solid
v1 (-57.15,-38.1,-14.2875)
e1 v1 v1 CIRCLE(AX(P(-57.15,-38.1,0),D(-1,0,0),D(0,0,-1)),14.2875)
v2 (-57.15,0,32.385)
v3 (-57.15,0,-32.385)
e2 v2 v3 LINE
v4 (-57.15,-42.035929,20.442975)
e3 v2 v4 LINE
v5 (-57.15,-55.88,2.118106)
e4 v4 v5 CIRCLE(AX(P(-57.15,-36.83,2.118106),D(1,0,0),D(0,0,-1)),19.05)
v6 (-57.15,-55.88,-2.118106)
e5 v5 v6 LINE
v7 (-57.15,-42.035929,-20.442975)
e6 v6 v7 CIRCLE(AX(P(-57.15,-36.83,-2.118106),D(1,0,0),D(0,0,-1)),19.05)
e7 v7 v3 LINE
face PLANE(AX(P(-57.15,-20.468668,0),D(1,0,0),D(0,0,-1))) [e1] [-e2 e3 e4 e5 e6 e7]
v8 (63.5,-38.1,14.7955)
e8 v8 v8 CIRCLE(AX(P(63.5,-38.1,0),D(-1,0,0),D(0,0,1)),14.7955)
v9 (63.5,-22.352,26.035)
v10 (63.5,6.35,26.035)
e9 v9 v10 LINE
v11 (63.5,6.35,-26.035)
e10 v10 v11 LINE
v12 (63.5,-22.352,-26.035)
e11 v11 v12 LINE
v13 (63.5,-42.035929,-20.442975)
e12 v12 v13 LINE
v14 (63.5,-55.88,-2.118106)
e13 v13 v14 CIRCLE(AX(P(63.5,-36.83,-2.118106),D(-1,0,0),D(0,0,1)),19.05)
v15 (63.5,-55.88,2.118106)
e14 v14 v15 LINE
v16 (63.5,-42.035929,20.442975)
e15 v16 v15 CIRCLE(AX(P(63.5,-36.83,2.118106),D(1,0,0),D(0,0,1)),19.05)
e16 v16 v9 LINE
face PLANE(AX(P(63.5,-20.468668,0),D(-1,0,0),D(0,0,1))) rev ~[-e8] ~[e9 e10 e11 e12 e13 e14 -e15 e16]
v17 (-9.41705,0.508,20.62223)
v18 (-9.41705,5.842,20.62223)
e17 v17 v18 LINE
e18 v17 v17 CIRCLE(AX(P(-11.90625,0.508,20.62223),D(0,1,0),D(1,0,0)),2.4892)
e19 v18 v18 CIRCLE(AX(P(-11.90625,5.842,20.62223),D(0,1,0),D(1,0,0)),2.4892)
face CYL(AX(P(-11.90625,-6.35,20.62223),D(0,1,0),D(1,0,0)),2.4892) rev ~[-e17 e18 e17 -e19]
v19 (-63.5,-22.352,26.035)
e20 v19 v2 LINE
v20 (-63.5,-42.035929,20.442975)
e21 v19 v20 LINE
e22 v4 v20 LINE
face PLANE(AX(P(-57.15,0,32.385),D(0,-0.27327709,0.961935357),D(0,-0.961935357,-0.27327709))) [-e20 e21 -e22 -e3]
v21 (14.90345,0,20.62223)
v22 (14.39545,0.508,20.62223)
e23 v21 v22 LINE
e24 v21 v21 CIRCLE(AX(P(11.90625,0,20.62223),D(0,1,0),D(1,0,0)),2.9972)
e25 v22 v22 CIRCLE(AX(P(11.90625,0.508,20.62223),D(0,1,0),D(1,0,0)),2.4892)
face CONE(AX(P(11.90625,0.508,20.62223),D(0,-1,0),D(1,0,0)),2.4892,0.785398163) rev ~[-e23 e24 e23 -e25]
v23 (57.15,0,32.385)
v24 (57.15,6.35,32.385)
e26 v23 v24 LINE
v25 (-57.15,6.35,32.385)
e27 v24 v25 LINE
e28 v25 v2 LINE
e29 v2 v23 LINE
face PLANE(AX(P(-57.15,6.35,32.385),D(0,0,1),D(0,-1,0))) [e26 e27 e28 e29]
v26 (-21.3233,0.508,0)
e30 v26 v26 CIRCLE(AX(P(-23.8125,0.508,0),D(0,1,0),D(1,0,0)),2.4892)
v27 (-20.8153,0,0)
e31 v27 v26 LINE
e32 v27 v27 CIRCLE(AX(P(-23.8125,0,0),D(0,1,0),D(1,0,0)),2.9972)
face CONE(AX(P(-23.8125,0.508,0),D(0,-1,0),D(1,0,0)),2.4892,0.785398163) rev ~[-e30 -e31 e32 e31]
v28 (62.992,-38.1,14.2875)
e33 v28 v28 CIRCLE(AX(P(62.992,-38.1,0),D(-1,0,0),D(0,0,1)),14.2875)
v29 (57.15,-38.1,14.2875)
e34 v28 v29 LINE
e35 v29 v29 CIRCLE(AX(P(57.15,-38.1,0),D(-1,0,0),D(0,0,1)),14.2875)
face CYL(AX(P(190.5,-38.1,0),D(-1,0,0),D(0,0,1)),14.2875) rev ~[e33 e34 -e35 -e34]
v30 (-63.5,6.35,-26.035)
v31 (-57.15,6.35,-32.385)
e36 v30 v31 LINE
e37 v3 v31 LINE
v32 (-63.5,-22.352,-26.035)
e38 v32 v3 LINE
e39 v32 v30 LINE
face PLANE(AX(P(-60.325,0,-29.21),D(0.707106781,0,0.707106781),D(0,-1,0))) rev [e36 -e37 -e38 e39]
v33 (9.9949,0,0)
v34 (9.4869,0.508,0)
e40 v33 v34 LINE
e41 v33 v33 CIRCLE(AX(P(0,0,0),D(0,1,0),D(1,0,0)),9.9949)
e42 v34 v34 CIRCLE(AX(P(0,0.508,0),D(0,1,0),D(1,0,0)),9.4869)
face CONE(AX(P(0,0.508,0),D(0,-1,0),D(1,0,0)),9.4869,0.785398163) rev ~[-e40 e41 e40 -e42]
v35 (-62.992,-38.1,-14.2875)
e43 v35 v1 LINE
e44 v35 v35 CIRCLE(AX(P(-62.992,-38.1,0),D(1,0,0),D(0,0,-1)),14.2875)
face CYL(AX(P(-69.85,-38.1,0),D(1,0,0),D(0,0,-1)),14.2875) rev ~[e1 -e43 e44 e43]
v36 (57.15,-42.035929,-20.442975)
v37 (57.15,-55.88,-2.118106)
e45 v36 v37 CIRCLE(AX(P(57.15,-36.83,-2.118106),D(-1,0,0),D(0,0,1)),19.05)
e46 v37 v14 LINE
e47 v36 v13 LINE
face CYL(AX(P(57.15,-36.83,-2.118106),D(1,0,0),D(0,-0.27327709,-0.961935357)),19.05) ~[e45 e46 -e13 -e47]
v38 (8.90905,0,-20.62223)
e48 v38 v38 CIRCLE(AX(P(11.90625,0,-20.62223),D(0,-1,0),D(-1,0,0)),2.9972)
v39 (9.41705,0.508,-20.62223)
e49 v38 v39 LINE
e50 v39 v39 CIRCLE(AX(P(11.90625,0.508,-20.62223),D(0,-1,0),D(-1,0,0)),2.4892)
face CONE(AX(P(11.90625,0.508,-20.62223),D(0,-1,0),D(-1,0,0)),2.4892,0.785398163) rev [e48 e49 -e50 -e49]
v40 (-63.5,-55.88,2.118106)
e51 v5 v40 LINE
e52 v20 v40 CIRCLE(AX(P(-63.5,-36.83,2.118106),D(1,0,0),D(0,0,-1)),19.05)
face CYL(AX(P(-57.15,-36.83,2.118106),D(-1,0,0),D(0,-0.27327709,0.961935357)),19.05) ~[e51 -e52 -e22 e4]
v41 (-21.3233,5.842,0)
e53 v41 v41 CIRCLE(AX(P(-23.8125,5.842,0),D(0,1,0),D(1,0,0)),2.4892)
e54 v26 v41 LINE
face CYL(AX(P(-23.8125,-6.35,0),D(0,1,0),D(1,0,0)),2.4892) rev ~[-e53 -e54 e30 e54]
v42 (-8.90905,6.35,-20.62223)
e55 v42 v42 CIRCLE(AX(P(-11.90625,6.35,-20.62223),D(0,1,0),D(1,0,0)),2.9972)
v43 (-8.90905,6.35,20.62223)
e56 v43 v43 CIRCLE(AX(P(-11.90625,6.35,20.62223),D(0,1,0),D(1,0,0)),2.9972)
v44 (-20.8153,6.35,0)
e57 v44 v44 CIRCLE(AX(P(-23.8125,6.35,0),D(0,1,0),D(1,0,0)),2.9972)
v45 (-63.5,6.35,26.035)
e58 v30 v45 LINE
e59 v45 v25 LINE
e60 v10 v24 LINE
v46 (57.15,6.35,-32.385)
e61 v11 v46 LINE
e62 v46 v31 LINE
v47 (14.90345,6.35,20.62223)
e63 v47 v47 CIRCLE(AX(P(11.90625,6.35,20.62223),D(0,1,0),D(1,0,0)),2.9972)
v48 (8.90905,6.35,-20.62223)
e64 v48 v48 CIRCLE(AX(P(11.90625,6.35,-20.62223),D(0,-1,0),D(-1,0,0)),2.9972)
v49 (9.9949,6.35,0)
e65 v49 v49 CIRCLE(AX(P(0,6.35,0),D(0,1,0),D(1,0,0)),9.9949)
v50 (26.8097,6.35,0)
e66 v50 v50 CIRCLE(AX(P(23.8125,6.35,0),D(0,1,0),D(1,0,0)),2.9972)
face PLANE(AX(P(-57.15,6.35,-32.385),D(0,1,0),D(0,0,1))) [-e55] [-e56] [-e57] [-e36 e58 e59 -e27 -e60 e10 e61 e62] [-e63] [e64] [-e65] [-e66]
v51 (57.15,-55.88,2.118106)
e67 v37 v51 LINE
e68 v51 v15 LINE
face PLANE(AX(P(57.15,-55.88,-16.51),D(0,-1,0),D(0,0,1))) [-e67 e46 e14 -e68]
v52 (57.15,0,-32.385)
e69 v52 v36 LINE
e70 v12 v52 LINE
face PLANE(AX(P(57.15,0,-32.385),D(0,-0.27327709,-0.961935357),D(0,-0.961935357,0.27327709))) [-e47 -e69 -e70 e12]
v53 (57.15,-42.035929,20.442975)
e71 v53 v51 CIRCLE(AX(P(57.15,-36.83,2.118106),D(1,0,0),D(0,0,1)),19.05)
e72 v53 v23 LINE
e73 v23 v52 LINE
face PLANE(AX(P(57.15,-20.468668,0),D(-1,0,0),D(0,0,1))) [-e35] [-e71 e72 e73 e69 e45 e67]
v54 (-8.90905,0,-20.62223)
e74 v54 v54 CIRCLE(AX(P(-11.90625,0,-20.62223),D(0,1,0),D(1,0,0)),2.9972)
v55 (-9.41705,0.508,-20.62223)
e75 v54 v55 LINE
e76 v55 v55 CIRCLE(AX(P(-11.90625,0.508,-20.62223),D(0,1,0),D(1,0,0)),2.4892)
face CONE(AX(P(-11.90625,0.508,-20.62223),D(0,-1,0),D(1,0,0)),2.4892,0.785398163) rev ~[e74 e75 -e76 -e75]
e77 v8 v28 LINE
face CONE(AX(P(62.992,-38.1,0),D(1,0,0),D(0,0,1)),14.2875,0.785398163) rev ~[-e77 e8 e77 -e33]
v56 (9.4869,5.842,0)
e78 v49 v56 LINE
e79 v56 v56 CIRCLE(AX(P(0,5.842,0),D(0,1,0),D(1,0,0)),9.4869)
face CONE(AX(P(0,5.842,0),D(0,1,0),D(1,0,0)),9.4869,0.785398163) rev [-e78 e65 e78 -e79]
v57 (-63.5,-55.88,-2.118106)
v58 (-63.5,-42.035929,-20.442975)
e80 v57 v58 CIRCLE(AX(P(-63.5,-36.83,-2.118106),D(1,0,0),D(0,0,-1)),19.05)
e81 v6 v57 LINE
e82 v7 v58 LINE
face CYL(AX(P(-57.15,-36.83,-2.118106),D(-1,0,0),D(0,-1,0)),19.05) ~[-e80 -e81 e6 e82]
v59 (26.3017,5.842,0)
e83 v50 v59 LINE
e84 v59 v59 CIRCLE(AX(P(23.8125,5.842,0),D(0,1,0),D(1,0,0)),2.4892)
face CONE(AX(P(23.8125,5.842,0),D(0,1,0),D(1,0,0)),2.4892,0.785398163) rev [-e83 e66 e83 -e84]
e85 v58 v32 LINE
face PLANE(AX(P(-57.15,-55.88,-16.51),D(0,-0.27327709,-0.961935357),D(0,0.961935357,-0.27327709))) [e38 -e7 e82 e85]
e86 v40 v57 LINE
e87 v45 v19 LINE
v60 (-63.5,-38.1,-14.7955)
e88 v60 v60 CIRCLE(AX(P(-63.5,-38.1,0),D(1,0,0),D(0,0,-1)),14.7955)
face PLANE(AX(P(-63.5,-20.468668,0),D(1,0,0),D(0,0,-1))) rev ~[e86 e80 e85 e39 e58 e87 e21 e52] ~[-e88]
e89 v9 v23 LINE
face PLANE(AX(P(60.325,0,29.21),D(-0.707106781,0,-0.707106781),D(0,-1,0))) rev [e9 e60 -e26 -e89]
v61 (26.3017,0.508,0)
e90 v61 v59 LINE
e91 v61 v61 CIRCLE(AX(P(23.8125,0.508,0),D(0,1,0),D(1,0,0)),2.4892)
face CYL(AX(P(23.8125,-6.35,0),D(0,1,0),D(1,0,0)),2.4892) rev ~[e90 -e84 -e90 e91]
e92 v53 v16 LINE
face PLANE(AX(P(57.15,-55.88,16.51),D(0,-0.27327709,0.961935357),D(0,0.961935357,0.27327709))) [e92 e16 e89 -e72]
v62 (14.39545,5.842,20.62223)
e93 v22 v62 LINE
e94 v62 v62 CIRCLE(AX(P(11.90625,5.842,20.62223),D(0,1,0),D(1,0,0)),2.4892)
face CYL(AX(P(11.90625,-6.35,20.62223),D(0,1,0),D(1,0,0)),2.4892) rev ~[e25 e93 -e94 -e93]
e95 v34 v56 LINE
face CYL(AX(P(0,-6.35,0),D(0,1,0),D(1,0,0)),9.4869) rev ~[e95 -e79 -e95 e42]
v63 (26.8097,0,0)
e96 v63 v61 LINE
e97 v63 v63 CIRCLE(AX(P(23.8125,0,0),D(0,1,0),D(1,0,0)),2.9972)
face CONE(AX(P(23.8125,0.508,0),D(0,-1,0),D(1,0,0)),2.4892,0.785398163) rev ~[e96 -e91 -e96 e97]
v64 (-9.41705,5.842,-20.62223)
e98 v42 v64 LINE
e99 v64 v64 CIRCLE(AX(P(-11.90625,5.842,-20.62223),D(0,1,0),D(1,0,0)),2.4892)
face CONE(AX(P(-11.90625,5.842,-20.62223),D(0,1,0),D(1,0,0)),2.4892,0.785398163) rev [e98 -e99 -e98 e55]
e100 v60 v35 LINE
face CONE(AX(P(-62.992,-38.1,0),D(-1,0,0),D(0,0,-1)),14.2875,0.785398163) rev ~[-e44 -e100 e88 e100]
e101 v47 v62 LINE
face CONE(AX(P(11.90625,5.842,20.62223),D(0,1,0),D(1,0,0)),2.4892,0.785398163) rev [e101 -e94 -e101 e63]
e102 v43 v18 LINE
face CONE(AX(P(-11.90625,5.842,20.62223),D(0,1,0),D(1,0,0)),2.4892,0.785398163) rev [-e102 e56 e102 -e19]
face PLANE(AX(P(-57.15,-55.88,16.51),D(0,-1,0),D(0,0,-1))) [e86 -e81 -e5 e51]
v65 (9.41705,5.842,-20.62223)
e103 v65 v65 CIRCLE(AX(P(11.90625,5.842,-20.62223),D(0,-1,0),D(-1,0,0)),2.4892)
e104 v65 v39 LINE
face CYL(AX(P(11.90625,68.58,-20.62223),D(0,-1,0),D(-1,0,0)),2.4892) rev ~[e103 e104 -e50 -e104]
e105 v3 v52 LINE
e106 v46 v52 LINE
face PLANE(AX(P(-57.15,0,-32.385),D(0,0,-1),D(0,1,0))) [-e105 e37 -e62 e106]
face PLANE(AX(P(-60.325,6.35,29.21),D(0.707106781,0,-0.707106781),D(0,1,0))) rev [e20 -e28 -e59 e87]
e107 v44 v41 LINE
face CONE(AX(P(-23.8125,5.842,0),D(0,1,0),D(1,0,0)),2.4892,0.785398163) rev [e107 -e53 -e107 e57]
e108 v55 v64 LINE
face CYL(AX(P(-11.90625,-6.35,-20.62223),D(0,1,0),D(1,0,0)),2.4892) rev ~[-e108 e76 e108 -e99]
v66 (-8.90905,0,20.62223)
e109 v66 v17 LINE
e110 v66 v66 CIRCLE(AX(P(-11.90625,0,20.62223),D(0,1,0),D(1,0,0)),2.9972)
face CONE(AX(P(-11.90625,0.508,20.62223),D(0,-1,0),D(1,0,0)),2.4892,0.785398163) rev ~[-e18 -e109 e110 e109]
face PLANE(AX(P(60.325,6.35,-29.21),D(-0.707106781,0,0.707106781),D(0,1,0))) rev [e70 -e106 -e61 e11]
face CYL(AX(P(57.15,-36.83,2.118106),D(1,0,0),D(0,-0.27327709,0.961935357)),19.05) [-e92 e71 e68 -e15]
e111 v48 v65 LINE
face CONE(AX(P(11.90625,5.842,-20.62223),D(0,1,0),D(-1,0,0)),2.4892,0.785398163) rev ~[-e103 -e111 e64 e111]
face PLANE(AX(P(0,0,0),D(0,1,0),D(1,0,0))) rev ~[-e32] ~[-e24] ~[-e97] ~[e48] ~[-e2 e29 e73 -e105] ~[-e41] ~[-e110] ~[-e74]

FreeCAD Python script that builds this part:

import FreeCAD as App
import Part
import Sketcher
Q = App.Units.Quantity


def edges_at(feature, points):
    """Names of the edges that pass closest to the given points."""
    edges = feature.Shape.Edges
    near = lambda p: min(range(len(edges)), key=lambda i: edges[i].distToShape(Part.Vertex(*p))[0])
    return sorted({f"Edge{near(p) + 1}" for p in points})

doc = App.newDocument("Part")
body = doc.addObject("PartDesign::Body", "Body")

# Sketch on XZ plane
sketch1 = body.newObject("Sketcher::SketchObject", "Sketch")
sketch1.AttachmentSupport = (doc.getObject("XZ_Plane"), [""])
sketch1.MapMode = "FlatFace"
sketch1.AttachmentOffset = App.Placement(App.Vector(0, 0, -0.25 * 25.4), App.Rotation())
sketch1.addGeometry([
    Part.LineSegment(App.Vector(-57.15, -32.385, 0), App.Vector(-57.15, 32.385, 0)),
    Part.LineSegment(App.Vector(-57.15, 32.385, 0), App.Vector(57.15, 32.385, 0)),
    Part.LineSegment(App.Vector(57.15, 32.385, 0), App.Vector(57.15, -32.385, 0)),
    Part.LineSegment(App.Vector(57.15, -32.385, 0), App.Vector(-57.15, -32.385, 0)),
], False)
sketch1.addConstraint([
    Sketcher.Constraint("Coincident", 0, 2, 1, 1),
    Sketcher.Constraint("Coincident", 1, 2, 2, 1),
    Sketcher.Constraint("Coincident", 2, 2, 3, 1),
    Sketcher.Constraint("Coincident", 3, 2, 0, 1),
    Sketcher.Constraint("Vertical", 0),
    Sketcher.Constraint("Horizontal", 1),
    Sketcher.Constraint("Vertical", 2),
    Sketcher.Constraint("Horizontal", 3),
    Sketcher.Constraint("Symmetric", 0, 2, 2, 2, -1, 1),
    Sketcher.Constraint("DistanceX", 1, 1, 1, 2, Q("4.5 in")),
    Sketcher.Constraint("DistanceY", 0, 1, 0, 2, Q("2.55 in")),
])
pad1 = body.newObject("PartDesign::Pad", "Pad")
pad1.Profile = sketch1
pad1.Length = Q("0.25 in")

# Sketch on YZ plane
sketch2 = body.newObject("Sketcher::SketchObject", "Sketch001")
sketch2.AttachmentSupport = (doc.getObject("YZ_Plane"), [""])
sketch2.MapMode = "FlatFace"
sketch2.AttachmentOffset = App.Placement(App.Vector(0, 0, 2.25 * 25.4), App.Rotation())
sketch2.addGeometry([
    Part.LineSegment(App.Vector(6.35, -32.385, 0), App.Vector(6.35, 32.385, 0)),  # 0
    Part.LineSegment(App.Vector(6.35, 32.385, 0), App.Vector(0, 32.385, 0)),  # 1
    Part.LineSegment(App.Vector(0, 32.385, 0), App.Vector(-55.88, 16.51, 0)),  # 2
    Part.LineSegment(App.Vector(-55.88, 16.51, 0), App.Vector(-55.88, -16.51, 0)),  # 3
    Part.LineSegment(App.Vector(-55.88, -16.51, 0), App.Vector(0, -32.385, 0)),  # 4
    Part.LineSegment(App.Vector(0, -32.385, 0), App.Vector(6.35, -32.385, 0)),  # 5
], False)
sketch2.addConstraint([
    Sketcher.Constraint("Coincident", 0, 2, 1, 1),
    Sketcher.Constraint("Coincident", 1, 2, 2, 1),
    Sketcher.Constraint("Coincident", 2, 2, 3, 1),
    Sketcher.Constraint("Coincident", 3, 2, 4, 1),
    Sketcher.Constraint("Coincident", 4, 2, 5, 1),
    Sketcher.Constraint("Coincident", 5, 2, 0, 1),
    Sketcher.Constraint("Vertical", 0),
    Sketcher.Constraint("Horizontal", 1),
    Sketcher.Constraint("Vertical", 3),
    Sketcher.Constraint("Horizontal", 5),
    Sketcher.Constraint("Symmetric", 1, 2, 4, 2, -1, 1),
    Sketcher.Constraint("PointOnObject", 1, 2, -2),
    Sketcher.Constraint("Equal", 2, 4),
    Sketcher.Constraint("DistanceY", 3, 2, 3, 1, Q("1.3 in")),
    Sketcher.Constraint("DistanceX", 1, 2, 1, 1, Q("0.25 in")),
    Sketcher.Constraint("DistanceY", 0, 1, 0, 2, Q("2.55 in")),
    Sketcher.Constraint("DistanceX", 2, 2, -1, 1, Q("2.2 in")),
])
pad2 = body.newObject("PartDesign::Pad", "Pad001")
pad2.Profile = sketch2
pad2.Length = Q("0.25 in")

# Sketch on YZ plane
sketch3 = body.newObject("Sketcher::SketchObject", "Sketch002")
sketch3.AttachmentSupport = (doc.getObject("YZ_Plane"), [""])
sketch3.MapMode = "FlatFace"
sketch3.AttachmentOffset = App.Placement(App.Vector(0, 0, -2.25 * 25.4), App.Rotation())
sketch3.addGeometry([
    Part.LineSegment(App.Vector(-55.88, 16.51, 0), App.Vector(0, 32.385, 0)),  # 0
    Part.LineSegment(App.Vector(0, 32.385, 0), App.Vector(6.35, 32.385, 0)),  # 1
    Part.LineSegment(App.Vector(6.35, 32.385, 0), App.Vector(6.35, -32.385, 0)),  # 2
    Part.LineSegment(App.Vector(6.35, -32.385, 0), App.Vector(0, -32.385, 0)),  # 3
    Part.LineSegment(App.Vector(0, -32.385, 0), App.Vector(-55.88, -16.51, 0)),  # 4
    Part.LineSegment(App.Vector(-55.88, -16.51, 0), App.Vector(-55.88, 16.51, 0)),  # 5
], False)
sketch3.addConstraint([
    Sketcher.Constraint("Coincident", 0, 2, 1, 1),
    Sketcher.Constraint("Coincident", 1, 2, 2, 1),
    Sketcher.Constraint("Coincident", 2, 2, 3, 1),
    Sketcher.Constraint("Coincident", 3, 2, 4, 1),
    Sketcher.Constraint("Coincident", 4, 2, 5, 1),
    Sketcher.Constraint("Coincident", 5, 2, 0, 1),
    Sketcher.Constraint("Horizontal", 1),
    Sketcher.Constraint("Vertical", 2),
    Sketcher.Constraint("Horizontal", 3),
    Sketcher.Constraint("Vertical", 5),
    Sketcher.Constraint("Symmetric", 0, 2, 3, 2, -1, 1),
    Sketcher.Constraint("PointOnObject", 0, 2, -2),
    Sketcher.Constraint("Equal", 0, 4),
    Sketcher.Constraint("DistanceY", 5, 1, 5, 2, Q("1.3 in")),
    Sketcher.Constraint("DistanceX", 1, 1, 1, 2, Q("0.25 in")),
    Sketcher.Constraint("DistanceY", 2, 2, 2, 1, Q("2.55 in")),
    Sketcher.Constraint("DistanceX", 4, 2, -1, 1, Q("2.2 in")),
])
pad3 = body.newObject("PartDesign::Pad", "Pad002")
pad3.Profile = sketch3
pad3.Length = Q("0.25 in")
pad3.Reversed = True

# Sketch on XZ plane
sketch4 = body.newObject("Sketcher::SketchObject", "Sketch003")
sketch4.AttachmentSupport = (doc.getObject("XZ_Plane"), [""])
sketch4.MapMode = "FlatFace"
sketch4.addGeometry(Part.Circle(App.Vector(0, 0, 0), App.Vector(0, 0, 1), 9.4869), False)
sketch4.addConstraint([
    Sketcher.Constraint("Coincident", 0, 3, -1, 1),
    Sketcher.Constraint("Diameter", 0, Q("0.747 in")),
])
doc.recompute()
hole = body.newObject("PartDesign::Hole", "Hole")
hole.Profile = sketch4
hole.ThreadType = "None"
hole.Diameter = Q("0.747 in")
hole.DepthType = "Dimension"
hole.Depth = Q("0.25 in")
hole.DrillPoint = "Flat"

# Sketch on XZ plane
sketch5 = body.newObject("Sketcher::SketchObject", "Sketch004")
sketch5.AttachmentSupport = (doc.getObject("XZ_Plane"), [""])
sketch5.MapMode = "FlatFace"
sketch5.AttachmentOffset = App.Placement(App.Vector(0, 0, -0.25 * 25.4), App.Rotation())
sketch5.addGeometry(Part.Circle(App.Vector(11.90625, -20.62223, 0), App.Vector(0, 0, 1), 2.4892), False)
sketch5.addConstraint([
    Sketcher.Constraint("Diameter", 0, Q("0.196 in")),
    Sketcher.Constraint("DistanceX", -1, 1, 0, 3, Q("0.46875 in")),
    Sketcher.Constraint("DistanceY", 0, 3, -1, 1, Q("20.62223 mm")),
])
doc.recompute()
hole2 = body.newObject("PartDesign::Hole", "Hole001")
hole2.Profile = sketch5
hole2.ThreadType = "None"
hole2.Diameter = Q("0.196 in")
hole2.DepthType = "Dimension"
hole2.Depth = Q("2.45 in")
hole2.DrillPoint = "Flat"
hole2.Reversed = True

# Sketch on XZ plane
sketch6 = body.newObject("Sketcher::SketchObject", "Sketch005")
sketch6.AttachmentSupport = (doc.getObject("XZ_Plane"), [""])
sketch6.MapMode = "FlatFace"
sketch6.addGeometry([
    Part.Circle(App.Vector(23.8125, 0, 0), App.Vector(0, 0, 1), 2.4892),  # 0
    Part.Circle(App.Vector(11.90625, 20.62223, 0), App.Vector(0, 0, 1), 2.4892),  # 1
    Part.Circle(App.Vector(-11.90625, 20.62223, 0), App.Vector(0, 0, 1), 2.4892),  # 2
    Part.Circle(App.Vector(-23.8125, 0, 0), App.Vector(0, 0, 1), 2.4892),  # 3
    Part.Circle(App.Vector(-11.90625, -20.62223, 0), App.Vector(0, 0, 1), 2.4892),  # 4
], False)
sketch6.addConstraint([
    Sketcher.Constraint("Equal", 0, 1),
    Sketcher.Constraint("Equal", 1, 2),
    Sketcher.Constraint("Equal", 2, 3),
    Sketcher.Constraint("Equal", 3, 4),
    Sketcher.Constraint("Symmetric", 0, 3, 3, 3, -1, 1),
    Sketcher.Constraint("Symmetric", 1, 3, 4, 3, -1, 1),
    Sketcher.Constraint("Symmetric", 1, 3, 2, 3, -2),
    Sketcher.Constraint("PointOnObject", 0, 3, -1),
    Sketcher.Constraint("Diameter", 0, Q("0.196 in")),
    Sketcher.Constraint("DistanceX", -1, 1, 0, 3, Q("0.9375 in")),
    Sketcher.Constraint("DistanceX", -1, 1, 1, 3, Q("0.46875 in")),
    Sketcher.Constraint("DistanceY", -1, 1, 1, 3, Q("20.62223 mm")),
])
doc.recompute()
hole3 = body.newObject("PartDesign::Hole", "Hole002")
hole3.Profile = sketch6
hole3.ThreadType = "None"
hole3.Diameter = Q("0.196 in")
hole3.DepthType = "Dimension"
hole3.Depth = Q("0.25 in")
hole3.DrillPoint = "Flat"

# Sketch on YZ plane
sketch7 = body.newObject("Sketcher::SketchObject", "Sketch006")
sketch7.AttachmentSupport = (doc.getObject("YZ_Plane"), [""])
sketch7.MapMode = "FlatFace"
sketch7.AttachmentOffset = App.Placement(App.Vector(0, 0, -2.5 * 25.4), App.Rotation())
sketch7.addGeometry(Part.Circle(App.Vector(-38.1, 0, 0), App.Vector(0, 0, 1), 14.2875), False)
sketch7.addConstraint([
    Sketcher.Constraint("PointOnObject", 0, 3, -1),
    Sketcher.Constraint("Diameter", 0, Q("1.125 in")),
    Sketcher.Constraint("DistanceX", 0, 3, -1, 1, Q("1.5 in")),
])
doc.recompute()
hole4 = body.newObject("PartDesign::Hole", "Hole003")
hole4.Profile = sketch7
hole4.ThreadType = "None"
hole4.Diameter = Q("1.125 in")
hole4.DepthType = "Dimension"
hole4.Depth = Q("0.25 in")
hole4.DrillPoint = "Flat"
hole4.Reversed = True

# Sketch on YZ plane
sketch8 = body.newObject("Sketcher::SketchObject", "Sketch007")
sketch8.AttachmentSupport = (doc.getObject("YZ_Plane"), [""])
sketch8.MapMode = "FlatFace"
sketch8.AttachmentOffset = App.Placement(App.Vector(0, 0, 2.5 * 25.4), App.Rotation())
sketch8.addGeometry(Part.Circle(App.Vector(-38.1, 0, 0), App.Vector(0, 0, 1), 14.2875), False)
sketch8.addConstraint([
    Sketcher.Constraint("PointOnObject", 0, 3, -1),
    Sketcher.Constraint("Diameter", 0, Q("1.125 in")),
    Sketcher.Constraint("DistanceX", 0, 3, -1, 1, Q("1.5 in")),
])
doc.recompute()
hole5 = body.newObject("PartDesign::Hole", "Hole004")
hole5.Profile = sketch8
hole5.ThreadType = "None"
hole5.Diameter = Q("1.125 in")
hole5.DepthType = "Dimension"
hole5.Depth = Q("5 in")
hole5.DrillPoint = "Flat"
doc.recompute()

chamfer = body.newObject("PartDesign::Chamfer", "Chamfer")
chamfer.Base = (hole5, edges_at(hole5, [
    (63.5, 3.175, -32.385),
    (63.5, 3.175, 32.385),
    (-63.5, 3.175, -32.385),
    (-63.5, 3.175, 32.385),
]))
chamfer.Size = Q("0.25 in")
doc.recompute()

chamfer2 = body.newObject("PartDesign::Chamfer", "Chamfer001")
chamfer2.Base = (chamfer, edges_at(chamfer, [
    (-9.487, 0, 0),
    (-9.487, 6.35, 0),
    (14.395, 0, -20.622),
    (14.395, 6.35, -20.622),
    (-14.395, 0, -20.622),
    (-14.395, 6.35, -20.622),
    (-26.302, 0, 0),
    (-26.302, 6.35, 0),
    (-14.395, 0, 20.622),
    (-14.395, 6.35, 20.622),
    (9.417, 0, 20.622),
    (9.417, 6.35, 20.622),
    (21.323, 0, 0),
    (21.323, 6.35, 0),
    (-63.5, -38.1, 14.287),
    (63.5, -38.1, -14.287),
]))
chamfer2.Size = Q("0.02 in")
doc.recompute()

fillet = body.newObject("PartDesign::Fillet", "Fillet")
fillet.Base = (chamfer2, edges_at(chamfer2, [
    (60.325, -55.88, 16.51),
    (60.325, -55.88, -16.51),
    (-60.325, -55.88, -16.51),
    (-60.325, -55.88, 16.51),
]))
fillet.Radius = Q("0.75 in")

doc.recompute()
